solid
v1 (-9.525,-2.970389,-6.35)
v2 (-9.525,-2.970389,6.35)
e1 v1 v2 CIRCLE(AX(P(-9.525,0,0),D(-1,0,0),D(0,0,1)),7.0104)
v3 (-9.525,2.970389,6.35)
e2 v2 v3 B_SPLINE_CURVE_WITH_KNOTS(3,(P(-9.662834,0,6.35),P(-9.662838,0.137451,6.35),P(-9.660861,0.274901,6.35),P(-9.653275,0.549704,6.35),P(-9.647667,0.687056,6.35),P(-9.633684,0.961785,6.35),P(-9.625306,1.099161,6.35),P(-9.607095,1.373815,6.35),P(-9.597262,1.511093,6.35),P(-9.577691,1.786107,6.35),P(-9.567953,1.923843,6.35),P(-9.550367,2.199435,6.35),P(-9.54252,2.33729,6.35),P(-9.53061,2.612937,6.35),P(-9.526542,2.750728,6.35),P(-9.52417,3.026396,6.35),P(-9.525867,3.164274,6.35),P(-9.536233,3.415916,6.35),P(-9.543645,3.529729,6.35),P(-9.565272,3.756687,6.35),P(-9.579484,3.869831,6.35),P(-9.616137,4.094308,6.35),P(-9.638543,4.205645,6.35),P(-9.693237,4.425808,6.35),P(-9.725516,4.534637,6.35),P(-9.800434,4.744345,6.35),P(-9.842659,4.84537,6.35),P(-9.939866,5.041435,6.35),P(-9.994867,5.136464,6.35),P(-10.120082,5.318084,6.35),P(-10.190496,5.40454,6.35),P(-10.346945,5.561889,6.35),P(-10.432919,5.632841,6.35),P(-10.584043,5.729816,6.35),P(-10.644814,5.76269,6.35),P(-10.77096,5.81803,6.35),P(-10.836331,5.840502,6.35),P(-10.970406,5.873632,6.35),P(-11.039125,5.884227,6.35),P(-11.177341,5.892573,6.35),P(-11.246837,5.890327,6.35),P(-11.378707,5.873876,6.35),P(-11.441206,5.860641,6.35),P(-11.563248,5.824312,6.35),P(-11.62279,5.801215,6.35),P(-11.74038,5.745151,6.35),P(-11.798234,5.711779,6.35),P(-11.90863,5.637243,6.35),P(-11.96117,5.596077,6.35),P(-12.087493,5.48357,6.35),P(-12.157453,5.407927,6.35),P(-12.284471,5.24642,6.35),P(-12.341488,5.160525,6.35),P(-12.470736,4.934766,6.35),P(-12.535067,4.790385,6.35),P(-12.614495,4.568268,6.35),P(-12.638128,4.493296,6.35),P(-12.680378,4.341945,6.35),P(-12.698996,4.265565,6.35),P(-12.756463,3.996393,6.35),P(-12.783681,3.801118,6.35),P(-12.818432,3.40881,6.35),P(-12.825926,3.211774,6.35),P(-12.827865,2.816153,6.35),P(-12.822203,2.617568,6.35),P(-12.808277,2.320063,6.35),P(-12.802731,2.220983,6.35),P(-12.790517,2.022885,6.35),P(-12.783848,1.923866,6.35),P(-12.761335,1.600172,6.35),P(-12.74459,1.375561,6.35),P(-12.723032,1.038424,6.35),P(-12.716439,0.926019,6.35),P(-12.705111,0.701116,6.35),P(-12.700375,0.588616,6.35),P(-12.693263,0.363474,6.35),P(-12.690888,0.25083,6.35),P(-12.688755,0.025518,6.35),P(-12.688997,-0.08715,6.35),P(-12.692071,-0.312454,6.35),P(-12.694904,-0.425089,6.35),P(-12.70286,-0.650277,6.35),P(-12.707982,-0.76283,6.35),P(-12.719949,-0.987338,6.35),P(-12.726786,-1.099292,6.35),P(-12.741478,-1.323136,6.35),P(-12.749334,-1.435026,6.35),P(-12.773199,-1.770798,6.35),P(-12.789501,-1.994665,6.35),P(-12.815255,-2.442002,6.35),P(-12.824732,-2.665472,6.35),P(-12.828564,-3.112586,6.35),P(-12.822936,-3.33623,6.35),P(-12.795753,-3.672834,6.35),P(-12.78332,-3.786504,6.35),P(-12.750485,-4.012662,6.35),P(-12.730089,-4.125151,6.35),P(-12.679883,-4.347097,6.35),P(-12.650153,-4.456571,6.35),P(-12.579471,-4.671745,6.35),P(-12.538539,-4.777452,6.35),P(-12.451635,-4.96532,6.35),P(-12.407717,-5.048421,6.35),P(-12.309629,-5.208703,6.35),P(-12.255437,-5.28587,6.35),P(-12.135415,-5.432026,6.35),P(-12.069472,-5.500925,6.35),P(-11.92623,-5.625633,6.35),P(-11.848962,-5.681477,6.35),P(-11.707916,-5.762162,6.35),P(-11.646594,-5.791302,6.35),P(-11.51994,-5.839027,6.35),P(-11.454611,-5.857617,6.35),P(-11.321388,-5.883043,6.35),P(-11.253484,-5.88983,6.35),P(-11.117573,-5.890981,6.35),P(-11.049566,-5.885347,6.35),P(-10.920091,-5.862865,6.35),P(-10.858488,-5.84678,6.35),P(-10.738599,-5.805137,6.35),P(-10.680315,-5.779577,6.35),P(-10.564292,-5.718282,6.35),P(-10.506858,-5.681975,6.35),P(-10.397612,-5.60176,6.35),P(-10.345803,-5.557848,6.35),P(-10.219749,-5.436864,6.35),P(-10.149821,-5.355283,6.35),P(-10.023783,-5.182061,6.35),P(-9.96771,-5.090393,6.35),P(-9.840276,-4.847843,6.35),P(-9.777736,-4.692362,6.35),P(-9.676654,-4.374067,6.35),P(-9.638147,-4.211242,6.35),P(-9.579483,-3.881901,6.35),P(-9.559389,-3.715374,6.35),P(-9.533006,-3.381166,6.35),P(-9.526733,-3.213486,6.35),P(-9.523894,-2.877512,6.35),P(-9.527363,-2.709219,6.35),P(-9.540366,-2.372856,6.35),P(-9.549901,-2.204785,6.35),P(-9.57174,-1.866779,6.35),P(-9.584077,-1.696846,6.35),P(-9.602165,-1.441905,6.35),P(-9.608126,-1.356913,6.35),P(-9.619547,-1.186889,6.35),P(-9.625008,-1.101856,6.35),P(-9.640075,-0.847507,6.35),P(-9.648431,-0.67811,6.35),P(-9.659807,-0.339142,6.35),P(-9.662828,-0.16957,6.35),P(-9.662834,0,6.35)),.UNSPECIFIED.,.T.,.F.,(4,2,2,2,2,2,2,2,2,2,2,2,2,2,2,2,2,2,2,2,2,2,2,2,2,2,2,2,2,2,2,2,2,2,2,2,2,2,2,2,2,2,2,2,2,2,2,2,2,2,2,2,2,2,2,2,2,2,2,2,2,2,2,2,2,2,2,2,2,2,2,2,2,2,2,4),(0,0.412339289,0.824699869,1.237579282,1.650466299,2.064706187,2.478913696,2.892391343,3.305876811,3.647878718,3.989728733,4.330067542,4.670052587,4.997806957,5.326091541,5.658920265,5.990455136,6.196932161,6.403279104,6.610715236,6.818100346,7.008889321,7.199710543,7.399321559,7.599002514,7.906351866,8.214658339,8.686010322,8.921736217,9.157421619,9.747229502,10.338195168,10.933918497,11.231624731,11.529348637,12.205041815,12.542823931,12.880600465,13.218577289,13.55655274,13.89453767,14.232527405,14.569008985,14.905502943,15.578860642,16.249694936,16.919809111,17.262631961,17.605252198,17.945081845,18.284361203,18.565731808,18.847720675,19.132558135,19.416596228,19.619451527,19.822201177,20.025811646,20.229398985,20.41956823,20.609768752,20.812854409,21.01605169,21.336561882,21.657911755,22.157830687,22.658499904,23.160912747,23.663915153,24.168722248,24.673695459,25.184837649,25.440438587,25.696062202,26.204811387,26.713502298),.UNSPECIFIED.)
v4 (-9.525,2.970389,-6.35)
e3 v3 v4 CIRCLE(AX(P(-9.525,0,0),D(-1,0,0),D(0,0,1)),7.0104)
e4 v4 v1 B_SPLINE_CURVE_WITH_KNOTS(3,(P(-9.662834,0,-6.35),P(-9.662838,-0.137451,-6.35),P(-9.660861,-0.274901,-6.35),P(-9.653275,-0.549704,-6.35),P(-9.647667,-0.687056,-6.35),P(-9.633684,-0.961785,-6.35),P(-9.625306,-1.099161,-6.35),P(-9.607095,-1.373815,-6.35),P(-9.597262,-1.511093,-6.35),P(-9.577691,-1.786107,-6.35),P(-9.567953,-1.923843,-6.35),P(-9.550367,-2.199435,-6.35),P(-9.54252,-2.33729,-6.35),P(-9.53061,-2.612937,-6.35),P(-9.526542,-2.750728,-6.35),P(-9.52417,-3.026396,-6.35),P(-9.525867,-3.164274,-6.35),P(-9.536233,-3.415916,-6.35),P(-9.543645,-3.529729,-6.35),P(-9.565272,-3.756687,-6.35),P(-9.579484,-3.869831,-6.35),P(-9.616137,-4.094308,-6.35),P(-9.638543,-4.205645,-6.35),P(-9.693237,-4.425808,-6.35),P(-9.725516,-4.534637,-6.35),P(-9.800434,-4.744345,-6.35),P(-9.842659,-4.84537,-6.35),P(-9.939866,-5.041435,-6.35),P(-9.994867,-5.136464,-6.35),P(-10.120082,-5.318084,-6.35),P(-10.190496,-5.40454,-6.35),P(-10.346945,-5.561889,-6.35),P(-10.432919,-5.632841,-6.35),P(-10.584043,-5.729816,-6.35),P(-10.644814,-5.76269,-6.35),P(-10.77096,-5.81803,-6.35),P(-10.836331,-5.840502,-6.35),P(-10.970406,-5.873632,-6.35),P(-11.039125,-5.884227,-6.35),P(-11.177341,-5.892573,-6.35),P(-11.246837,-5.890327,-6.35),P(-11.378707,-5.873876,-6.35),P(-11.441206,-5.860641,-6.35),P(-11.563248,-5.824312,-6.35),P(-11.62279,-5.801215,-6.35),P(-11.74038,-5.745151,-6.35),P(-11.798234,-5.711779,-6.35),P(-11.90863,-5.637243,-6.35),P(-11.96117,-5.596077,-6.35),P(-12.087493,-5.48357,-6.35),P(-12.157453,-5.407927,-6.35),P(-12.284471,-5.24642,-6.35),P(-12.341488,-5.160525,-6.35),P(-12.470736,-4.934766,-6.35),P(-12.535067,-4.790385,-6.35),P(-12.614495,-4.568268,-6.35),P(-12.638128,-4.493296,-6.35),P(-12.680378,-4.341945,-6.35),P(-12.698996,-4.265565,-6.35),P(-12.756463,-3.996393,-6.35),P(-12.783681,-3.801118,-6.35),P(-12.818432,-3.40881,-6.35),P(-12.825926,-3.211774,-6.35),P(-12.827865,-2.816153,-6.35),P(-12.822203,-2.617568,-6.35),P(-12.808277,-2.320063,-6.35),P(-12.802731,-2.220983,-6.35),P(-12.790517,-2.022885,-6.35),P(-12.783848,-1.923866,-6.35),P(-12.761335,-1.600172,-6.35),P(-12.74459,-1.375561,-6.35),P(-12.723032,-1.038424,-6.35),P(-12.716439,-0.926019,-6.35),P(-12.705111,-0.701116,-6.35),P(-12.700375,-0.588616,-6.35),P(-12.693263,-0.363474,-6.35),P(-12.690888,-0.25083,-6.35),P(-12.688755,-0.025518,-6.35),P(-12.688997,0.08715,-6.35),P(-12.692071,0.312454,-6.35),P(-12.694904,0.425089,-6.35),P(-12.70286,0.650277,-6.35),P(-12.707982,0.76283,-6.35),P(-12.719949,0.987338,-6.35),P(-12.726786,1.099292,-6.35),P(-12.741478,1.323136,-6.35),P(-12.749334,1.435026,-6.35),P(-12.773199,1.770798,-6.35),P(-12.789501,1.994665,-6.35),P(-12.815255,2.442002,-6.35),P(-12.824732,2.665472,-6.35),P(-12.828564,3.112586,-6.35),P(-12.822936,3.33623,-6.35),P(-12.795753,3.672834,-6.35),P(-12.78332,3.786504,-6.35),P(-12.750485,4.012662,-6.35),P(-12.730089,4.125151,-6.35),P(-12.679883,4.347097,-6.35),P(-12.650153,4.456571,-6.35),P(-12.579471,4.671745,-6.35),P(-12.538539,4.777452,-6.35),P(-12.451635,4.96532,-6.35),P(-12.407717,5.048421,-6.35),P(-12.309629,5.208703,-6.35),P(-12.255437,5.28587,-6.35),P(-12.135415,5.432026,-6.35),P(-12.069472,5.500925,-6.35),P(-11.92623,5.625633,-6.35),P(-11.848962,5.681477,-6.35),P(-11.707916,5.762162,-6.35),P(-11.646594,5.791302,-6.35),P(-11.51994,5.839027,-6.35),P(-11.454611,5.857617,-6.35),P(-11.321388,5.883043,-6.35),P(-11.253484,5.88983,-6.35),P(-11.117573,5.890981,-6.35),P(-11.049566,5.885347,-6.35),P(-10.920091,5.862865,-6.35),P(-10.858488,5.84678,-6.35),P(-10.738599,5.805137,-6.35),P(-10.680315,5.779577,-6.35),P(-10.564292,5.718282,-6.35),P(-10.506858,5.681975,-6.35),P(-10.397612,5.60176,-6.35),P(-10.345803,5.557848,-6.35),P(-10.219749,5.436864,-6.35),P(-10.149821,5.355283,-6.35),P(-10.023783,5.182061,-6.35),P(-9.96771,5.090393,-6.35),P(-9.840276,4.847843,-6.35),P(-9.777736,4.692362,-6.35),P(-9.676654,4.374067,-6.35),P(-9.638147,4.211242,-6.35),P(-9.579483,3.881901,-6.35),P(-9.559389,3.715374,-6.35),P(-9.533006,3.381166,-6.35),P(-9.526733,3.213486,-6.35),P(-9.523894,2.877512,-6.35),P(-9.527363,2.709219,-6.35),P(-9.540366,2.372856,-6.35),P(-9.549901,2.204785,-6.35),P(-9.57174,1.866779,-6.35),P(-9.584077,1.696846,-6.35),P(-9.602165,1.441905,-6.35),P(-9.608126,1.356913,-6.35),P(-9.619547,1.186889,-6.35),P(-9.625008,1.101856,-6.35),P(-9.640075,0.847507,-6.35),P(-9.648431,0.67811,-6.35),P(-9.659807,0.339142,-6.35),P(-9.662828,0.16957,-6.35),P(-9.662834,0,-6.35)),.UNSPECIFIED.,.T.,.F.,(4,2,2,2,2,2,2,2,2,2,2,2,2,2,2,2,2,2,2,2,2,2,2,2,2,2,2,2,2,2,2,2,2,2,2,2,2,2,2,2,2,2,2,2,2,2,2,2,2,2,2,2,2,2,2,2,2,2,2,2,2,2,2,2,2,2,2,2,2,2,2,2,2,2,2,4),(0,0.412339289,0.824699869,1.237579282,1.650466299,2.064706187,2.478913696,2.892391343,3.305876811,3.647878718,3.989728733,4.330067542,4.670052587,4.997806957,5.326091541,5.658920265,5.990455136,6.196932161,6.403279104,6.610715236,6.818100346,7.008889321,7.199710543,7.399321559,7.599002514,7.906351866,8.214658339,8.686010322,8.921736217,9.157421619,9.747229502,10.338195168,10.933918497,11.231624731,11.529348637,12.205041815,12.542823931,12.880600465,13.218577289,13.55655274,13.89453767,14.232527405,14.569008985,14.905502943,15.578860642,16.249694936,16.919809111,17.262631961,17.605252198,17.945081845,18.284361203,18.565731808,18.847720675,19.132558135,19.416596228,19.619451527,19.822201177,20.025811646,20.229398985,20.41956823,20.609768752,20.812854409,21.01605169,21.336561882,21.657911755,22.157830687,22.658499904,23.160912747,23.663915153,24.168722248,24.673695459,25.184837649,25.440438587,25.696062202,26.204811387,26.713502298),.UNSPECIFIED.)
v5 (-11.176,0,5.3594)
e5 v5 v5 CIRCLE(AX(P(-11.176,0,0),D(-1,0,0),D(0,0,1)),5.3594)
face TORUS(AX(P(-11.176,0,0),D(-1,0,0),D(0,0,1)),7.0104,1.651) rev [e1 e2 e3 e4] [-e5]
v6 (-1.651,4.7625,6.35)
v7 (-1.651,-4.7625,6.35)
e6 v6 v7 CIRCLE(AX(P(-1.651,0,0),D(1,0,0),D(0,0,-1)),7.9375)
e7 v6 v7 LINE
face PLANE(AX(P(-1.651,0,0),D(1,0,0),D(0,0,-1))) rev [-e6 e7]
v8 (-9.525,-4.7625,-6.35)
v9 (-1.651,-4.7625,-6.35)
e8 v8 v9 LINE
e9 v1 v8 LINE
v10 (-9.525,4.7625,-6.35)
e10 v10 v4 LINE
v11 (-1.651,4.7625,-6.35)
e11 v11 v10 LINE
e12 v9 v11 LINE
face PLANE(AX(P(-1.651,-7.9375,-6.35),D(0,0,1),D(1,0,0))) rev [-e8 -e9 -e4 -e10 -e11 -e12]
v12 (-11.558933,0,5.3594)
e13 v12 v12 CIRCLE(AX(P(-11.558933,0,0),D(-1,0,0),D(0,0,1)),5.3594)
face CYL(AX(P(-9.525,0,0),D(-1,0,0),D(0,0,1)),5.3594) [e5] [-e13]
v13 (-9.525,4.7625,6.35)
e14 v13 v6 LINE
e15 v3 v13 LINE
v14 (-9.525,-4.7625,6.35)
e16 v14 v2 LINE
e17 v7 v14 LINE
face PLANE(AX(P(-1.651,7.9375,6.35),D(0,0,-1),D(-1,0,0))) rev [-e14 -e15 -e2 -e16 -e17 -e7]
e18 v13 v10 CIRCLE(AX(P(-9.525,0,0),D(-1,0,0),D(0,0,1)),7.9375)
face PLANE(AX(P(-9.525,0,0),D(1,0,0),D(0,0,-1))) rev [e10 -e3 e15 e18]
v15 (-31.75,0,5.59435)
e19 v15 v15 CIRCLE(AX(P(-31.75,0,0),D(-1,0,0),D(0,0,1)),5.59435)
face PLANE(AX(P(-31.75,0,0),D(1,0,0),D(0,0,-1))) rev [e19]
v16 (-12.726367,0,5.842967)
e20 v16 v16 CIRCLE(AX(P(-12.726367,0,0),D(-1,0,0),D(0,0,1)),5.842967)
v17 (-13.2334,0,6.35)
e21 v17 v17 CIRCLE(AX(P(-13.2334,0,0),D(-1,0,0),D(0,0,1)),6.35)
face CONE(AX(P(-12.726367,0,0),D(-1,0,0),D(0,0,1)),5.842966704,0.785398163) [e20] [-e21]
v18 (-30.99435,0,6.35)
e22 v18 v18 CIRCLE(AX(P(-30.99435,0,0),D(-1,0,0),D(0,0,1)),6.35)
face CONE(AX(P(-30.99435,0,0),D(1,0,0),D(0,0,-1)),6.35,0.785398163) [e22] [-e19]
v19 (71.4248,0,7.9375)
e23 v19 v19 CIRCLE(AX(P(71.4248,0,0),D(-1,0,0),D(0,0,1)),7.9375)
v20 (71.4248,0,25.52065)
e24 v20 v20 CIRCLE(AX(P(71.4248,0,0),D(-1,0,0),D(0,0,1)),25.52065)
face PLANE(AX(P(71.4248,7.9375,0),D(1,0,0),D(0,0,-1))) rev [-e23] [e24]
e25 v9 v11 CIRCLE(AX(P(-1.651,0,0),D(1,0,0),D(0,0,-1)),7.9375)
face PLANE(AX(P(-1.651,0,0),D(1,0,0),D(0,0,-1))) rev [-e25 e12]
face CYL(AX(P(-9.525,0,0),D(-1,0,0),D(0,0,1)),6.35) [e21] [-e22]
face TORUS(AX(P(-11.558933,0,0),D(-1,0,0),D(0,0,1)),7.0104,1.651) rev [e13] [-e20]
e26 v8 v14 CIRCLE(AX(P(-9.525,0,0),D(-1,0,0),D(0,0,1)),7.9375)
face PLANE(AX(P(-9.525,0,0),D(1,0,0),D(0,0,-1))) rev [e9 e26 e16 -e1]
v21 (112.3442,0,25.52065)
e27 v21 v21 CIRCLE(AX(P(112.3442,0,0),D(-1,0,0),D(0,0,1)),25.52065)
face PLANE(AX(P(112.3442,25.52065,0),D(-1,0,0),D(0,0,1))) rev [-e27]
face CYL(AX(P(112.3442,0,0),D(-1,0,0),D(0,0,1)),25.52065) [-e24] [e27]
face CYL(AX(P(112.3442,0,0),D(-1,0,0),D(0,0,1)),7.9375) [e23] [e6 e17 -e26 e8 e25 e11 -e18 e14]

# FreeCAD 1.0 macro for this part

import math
import FreeCAD as App
import Part
import Sketcher

V = App.Vector
Q = App.Units.Quantity


def add_polygon(sketch, points):
    """Adds a closed chain of lines whose ends are joined by coincident constraints."""
    first, n = sketch.GeometryCount, len(points)
    for a, b in zip(points, points[1:] + points[:1]):
        sketch.addGeometry(Part.LineSegment(App.Vector(*a, 0), App.Vector(*b, 0)), False)
    for i in range(n):
        sketch.addConstraint(Sketcher.Constraint("Coincident", first + i, 2, first + (i + 1) % n, 1))

doc = App.newDocument("Part")
body = doc.addObject("PartDesign::Body", "Body")

# Sketch on XY plane
sketch1 = body.newObject("Sketcher::SketchObject", "Sketch")
sketch1.AttachmentSupport = (doc.getObject("XY_Plane"), [""])
sketch1.MapMode = "FlatFace"
add_polygon(sketch1, [(-9.525, 7.9375), (-9.525, 0), (112.3442, 0), (112.3442, 25.52065), (71.4248, 25.52065), (71.4248, 7.9375)])  # lines 0-5
sketch1.addConstraint(Sketcher.Constraint("Vertical", 0))
sketch1.addConstraint(Sketcher.Constraint("Horizontal", 1))
sketch1.addConstraint(Sketcher.Constraint("Vertical", 2))
sketch1.addConstraint(Sketcher.Constraint("Horizontal", 3))
sketch1.addConstraint(Sketcher.Constraint("Vertical", 4))
sketch1.addConstraint(Sketcher.Constraint("Horizontal", 5))
sketch1.addConstraint(Sketcher.Constraint("PointOnObject", 0, 2, -1))
sketch1.addConstraint(Sketcher.Constraint("DistanceX", 1, 1, 1, 2, Q("4.798 in")))
sketch1.addConstraint(Sketcher.Constraint("DistanceX", 3, 2, 3, 1, Q("1.611 in")))
sketch1.addConstraint(Sketcher.Constraint("DistanceY", 0, 2, 0, 1, Q("0.3125 in")))
sketch1.addConstraint(Sketcher.Constraint("DistanceX", 0, 2, -1, 1, Q("0.375 in")))
sketch1.addConstraint(Sketcher.Constraint("DistanceY", 2, 1, 2, 2, 25.52065))
revolution = body.newObject("PartDesign::Revolution", "Revolution")
revolution.Profile = sketch1
revolution.ReferenceAxis = (sketch1, ["H_Axis"])
revolution.Angle = 360

# Sketch on XY plane
sketch2 = body.newObject("Sketcher::SketchObject", "Sketch001")
sketch2.AttachmentSupport = (doc.getObject("XY_Plane"), [""])
sketch2.MapMode = "FlatFace"
sketch2.addGeometry(Part.LineSegment(V(-31.75, 5.59435, 0), V(-31.75, 0, 0)), False)
sketch2.addGeometry(Part.LineSegment(V(-31.75, 0, 0), V(-9.525, 0, 0)), False)
sketch2.addGeometry(Part.LineSegment(V(-9.525, 0, 0), V(-9.525, 7.0104, 0)), False)
sketch2.addGeometry(Part.ArcOfCircle(Part.Circle(V(-11.176, 7.0104, 0), V(0, 0, 1), 1.651), math.radians(-90), math.radians(0)), False)
sketch2.addGeometry(Part.LineSegment(V(-11.176, 5.3594, 0), V(-11.558933, 5.3594, 0)), False)
sketch2.addGeometry(Part.ArcOfCircle(Part.Circle(V(-11.558933, 7.0104, 0), V(0, 0, 1), 1.651), math.radians(-135), math.radians(-90)), False)
sketch2.addGeometry(Part.LineSegment(V(-12.726367, 5.842967, 0), V(-13.2334, 6.35, 0)), False)
sketch2.addGeometry(Part.LineSegment(V(-13.2334, 6.35, 0), V(-30.99435, 6.35, 0)), False)
sketch2.addGeometry(Part.LineSegment(V(-30.99435, 6.35, 0), V(-31.75, 5.59435, 0)), False)
sketch2.addConstraint(Sketcher.Constraint("Coincident", 0, 2, 1, 1))
sketch2.addConstraint(Sketcher.Constraint("Coincident", 1, 2, 2, 1))
sketch2.addConstraint(Sketcher.Constraint("Tangent", 2, 2, 3, 2))
sketch2.addConstraint(Sketcher.Constraint("Tangent", 3, 1, 4, 1))
sketch2.addConstraint(Sketcher.Constraint("Tangent", 4, 2, 5, 2))
sketch2.addConstraint(Sketcher.Constraint("Tangent", 5, 1, 6, 1))
sketch2.addConstraint(Sketcher.Constraint("Coincident", 6, 2, 7, 1))
sketch2.addConstraint(Sketcher.Constraint("Coincident", 7, 2, 8, 1))
sketch2.addConstraint(Sketcher.Constraint("Coincident", 8, 2, 0, 1))
sketch2.addConstraint(Sketcher.Constraint("Vertical", 0))
sketch2.addConstraint(Sketcher.Constraint("Horizontal", 1))
sketch2.addConstraint(Sketcher.Constraint("Vertical", 2))
sketch2.addConstraint(Sketcher.Constraint("Horizontal", 4))
sketch2.addConstraint(Sketcher.Constraint("Horizontal", 7))
sketch2.addConstraint(Sketcher.Constraint("Equal", 3, 5))
sketch2.addConstraint(Sketcher.Constraint("PointOnObject", 0, 2, -1))
sketch2.addConstraint(Sketcher.Constraint("Perpendicular", 6, 8))
sketch2.addConstraint(Sketcher.Constraint("Angle", 6, Q("135 deg")))
sketch2.addConstraint(Sketcher.Constraint("Radius", 3, Q("0.065 in")))
sketch2.addConstraint(Sketcher.Constraint("DistanceX", 1, 1, 1, 2, Q("0.875 in")))
sketch2.addConstraint(Sketcher.Constraint("DistanceY", 2, 1, 2, 2, Q("0.276 in")))
sketch2.addConstraint(Sketcher.Constraint("DistanceX", 3, 3, -1, 1, Q("0.44 in")))
sketch2.addConstraint(Sketcher.Constraint("DistanceY", -1, 1, 6, 2, Q("0.25 in")))
sketch2.addConstraint(Sketcher.Constraint("DistanceX", 6, 2, -1, 1, Q("0.521 in")))
sketch2.addConstraint(Sketcher.Constraint("DistanceX", 7, 2, 7, 1, 17.76095))
revolution2 = body.newObject("PartDesign::Revolution", "Revolution001")
revolution2.Profile = sketch2
revolution2.ReferenceAxis = (sketch2, ["H_Axis"])
revolution2.Angle = 360

# Sketch on YZ plane
sketch3 = body.newObject("Sketcher::SketchObject", "Sketch002")
sketch3.AttachmentSupport = (doc.getObject("YZ_Plane"), [""])
sketch3.MapMode = "FlatFace"
sketch3.AttachmentOffset = App.Placement(V(0, 0, -0.4 * 25.4), App.Rotation())
add_polygon(sketch3, [(15.875, 15.875), (-15.875, 15.875), (-15.875, -15.875), (15.875, -15.875)])  # lines 0-3
add_polygon(sketch3, [(-7.9375, -6.35), (-7.9375, 6.35), (7.9375, 6.35), (7.9375, -6.35)])  # lines 4-7
sketch3.addConstraint(Sketcher.Constraint("Horizontal", 0))
sketch3.addConstraint(Sketcher.Constraint("Vertical", 1))
sketch3.addConstraint(Sketcher.Constraint("Horizontal", 2))
sketch3.addConstraint(Sketcher.Constraint("Vertical", 3))
sketch3.addConstraint(Sketcher.Constraint("Vertical", 4))
sketch3.addConstraint(Sketcher.Constraint("Horizontal", 5))
sketch3.addConstraint(Sketcher.Constraint("Vertical", 6))
sketch3.addConstraint(Sketcher.Constraint("Horizontal", 7))
sketch3.addConstraint(Sketcher.Constraint("Symmetric", 0, 2, 2, 2, -1, 1))
sketch3.addConstraint(Sketcher.Constraint("Symmetric", 4, 2, 6, 2, -1, 1))
sketch3.addConstraint(Sketcher.Constraint("Equal", 2, 1))
sketch3.addConstraint(Sketcher.Constraint("DistanceY", 4, 1, 4, 2, Q("0.5 in")))
sketch3.addConstraint(Sketcher.Constraint("DistanceX", 0, 2, 0, 1, Q("1.25 in")))
sketch3.addConstraint(Sketcher.Constraint("DistanceX", 5, 1, 5, 2, Q("0.625 in")))
pocket1 = body.newObject("PartDesign::Pocket", "Pocket")
pocket1.Profile = sketch3
pocket1.Length = Q("0.335 in")
pocket1.Reversed = True

doc.recompute()
